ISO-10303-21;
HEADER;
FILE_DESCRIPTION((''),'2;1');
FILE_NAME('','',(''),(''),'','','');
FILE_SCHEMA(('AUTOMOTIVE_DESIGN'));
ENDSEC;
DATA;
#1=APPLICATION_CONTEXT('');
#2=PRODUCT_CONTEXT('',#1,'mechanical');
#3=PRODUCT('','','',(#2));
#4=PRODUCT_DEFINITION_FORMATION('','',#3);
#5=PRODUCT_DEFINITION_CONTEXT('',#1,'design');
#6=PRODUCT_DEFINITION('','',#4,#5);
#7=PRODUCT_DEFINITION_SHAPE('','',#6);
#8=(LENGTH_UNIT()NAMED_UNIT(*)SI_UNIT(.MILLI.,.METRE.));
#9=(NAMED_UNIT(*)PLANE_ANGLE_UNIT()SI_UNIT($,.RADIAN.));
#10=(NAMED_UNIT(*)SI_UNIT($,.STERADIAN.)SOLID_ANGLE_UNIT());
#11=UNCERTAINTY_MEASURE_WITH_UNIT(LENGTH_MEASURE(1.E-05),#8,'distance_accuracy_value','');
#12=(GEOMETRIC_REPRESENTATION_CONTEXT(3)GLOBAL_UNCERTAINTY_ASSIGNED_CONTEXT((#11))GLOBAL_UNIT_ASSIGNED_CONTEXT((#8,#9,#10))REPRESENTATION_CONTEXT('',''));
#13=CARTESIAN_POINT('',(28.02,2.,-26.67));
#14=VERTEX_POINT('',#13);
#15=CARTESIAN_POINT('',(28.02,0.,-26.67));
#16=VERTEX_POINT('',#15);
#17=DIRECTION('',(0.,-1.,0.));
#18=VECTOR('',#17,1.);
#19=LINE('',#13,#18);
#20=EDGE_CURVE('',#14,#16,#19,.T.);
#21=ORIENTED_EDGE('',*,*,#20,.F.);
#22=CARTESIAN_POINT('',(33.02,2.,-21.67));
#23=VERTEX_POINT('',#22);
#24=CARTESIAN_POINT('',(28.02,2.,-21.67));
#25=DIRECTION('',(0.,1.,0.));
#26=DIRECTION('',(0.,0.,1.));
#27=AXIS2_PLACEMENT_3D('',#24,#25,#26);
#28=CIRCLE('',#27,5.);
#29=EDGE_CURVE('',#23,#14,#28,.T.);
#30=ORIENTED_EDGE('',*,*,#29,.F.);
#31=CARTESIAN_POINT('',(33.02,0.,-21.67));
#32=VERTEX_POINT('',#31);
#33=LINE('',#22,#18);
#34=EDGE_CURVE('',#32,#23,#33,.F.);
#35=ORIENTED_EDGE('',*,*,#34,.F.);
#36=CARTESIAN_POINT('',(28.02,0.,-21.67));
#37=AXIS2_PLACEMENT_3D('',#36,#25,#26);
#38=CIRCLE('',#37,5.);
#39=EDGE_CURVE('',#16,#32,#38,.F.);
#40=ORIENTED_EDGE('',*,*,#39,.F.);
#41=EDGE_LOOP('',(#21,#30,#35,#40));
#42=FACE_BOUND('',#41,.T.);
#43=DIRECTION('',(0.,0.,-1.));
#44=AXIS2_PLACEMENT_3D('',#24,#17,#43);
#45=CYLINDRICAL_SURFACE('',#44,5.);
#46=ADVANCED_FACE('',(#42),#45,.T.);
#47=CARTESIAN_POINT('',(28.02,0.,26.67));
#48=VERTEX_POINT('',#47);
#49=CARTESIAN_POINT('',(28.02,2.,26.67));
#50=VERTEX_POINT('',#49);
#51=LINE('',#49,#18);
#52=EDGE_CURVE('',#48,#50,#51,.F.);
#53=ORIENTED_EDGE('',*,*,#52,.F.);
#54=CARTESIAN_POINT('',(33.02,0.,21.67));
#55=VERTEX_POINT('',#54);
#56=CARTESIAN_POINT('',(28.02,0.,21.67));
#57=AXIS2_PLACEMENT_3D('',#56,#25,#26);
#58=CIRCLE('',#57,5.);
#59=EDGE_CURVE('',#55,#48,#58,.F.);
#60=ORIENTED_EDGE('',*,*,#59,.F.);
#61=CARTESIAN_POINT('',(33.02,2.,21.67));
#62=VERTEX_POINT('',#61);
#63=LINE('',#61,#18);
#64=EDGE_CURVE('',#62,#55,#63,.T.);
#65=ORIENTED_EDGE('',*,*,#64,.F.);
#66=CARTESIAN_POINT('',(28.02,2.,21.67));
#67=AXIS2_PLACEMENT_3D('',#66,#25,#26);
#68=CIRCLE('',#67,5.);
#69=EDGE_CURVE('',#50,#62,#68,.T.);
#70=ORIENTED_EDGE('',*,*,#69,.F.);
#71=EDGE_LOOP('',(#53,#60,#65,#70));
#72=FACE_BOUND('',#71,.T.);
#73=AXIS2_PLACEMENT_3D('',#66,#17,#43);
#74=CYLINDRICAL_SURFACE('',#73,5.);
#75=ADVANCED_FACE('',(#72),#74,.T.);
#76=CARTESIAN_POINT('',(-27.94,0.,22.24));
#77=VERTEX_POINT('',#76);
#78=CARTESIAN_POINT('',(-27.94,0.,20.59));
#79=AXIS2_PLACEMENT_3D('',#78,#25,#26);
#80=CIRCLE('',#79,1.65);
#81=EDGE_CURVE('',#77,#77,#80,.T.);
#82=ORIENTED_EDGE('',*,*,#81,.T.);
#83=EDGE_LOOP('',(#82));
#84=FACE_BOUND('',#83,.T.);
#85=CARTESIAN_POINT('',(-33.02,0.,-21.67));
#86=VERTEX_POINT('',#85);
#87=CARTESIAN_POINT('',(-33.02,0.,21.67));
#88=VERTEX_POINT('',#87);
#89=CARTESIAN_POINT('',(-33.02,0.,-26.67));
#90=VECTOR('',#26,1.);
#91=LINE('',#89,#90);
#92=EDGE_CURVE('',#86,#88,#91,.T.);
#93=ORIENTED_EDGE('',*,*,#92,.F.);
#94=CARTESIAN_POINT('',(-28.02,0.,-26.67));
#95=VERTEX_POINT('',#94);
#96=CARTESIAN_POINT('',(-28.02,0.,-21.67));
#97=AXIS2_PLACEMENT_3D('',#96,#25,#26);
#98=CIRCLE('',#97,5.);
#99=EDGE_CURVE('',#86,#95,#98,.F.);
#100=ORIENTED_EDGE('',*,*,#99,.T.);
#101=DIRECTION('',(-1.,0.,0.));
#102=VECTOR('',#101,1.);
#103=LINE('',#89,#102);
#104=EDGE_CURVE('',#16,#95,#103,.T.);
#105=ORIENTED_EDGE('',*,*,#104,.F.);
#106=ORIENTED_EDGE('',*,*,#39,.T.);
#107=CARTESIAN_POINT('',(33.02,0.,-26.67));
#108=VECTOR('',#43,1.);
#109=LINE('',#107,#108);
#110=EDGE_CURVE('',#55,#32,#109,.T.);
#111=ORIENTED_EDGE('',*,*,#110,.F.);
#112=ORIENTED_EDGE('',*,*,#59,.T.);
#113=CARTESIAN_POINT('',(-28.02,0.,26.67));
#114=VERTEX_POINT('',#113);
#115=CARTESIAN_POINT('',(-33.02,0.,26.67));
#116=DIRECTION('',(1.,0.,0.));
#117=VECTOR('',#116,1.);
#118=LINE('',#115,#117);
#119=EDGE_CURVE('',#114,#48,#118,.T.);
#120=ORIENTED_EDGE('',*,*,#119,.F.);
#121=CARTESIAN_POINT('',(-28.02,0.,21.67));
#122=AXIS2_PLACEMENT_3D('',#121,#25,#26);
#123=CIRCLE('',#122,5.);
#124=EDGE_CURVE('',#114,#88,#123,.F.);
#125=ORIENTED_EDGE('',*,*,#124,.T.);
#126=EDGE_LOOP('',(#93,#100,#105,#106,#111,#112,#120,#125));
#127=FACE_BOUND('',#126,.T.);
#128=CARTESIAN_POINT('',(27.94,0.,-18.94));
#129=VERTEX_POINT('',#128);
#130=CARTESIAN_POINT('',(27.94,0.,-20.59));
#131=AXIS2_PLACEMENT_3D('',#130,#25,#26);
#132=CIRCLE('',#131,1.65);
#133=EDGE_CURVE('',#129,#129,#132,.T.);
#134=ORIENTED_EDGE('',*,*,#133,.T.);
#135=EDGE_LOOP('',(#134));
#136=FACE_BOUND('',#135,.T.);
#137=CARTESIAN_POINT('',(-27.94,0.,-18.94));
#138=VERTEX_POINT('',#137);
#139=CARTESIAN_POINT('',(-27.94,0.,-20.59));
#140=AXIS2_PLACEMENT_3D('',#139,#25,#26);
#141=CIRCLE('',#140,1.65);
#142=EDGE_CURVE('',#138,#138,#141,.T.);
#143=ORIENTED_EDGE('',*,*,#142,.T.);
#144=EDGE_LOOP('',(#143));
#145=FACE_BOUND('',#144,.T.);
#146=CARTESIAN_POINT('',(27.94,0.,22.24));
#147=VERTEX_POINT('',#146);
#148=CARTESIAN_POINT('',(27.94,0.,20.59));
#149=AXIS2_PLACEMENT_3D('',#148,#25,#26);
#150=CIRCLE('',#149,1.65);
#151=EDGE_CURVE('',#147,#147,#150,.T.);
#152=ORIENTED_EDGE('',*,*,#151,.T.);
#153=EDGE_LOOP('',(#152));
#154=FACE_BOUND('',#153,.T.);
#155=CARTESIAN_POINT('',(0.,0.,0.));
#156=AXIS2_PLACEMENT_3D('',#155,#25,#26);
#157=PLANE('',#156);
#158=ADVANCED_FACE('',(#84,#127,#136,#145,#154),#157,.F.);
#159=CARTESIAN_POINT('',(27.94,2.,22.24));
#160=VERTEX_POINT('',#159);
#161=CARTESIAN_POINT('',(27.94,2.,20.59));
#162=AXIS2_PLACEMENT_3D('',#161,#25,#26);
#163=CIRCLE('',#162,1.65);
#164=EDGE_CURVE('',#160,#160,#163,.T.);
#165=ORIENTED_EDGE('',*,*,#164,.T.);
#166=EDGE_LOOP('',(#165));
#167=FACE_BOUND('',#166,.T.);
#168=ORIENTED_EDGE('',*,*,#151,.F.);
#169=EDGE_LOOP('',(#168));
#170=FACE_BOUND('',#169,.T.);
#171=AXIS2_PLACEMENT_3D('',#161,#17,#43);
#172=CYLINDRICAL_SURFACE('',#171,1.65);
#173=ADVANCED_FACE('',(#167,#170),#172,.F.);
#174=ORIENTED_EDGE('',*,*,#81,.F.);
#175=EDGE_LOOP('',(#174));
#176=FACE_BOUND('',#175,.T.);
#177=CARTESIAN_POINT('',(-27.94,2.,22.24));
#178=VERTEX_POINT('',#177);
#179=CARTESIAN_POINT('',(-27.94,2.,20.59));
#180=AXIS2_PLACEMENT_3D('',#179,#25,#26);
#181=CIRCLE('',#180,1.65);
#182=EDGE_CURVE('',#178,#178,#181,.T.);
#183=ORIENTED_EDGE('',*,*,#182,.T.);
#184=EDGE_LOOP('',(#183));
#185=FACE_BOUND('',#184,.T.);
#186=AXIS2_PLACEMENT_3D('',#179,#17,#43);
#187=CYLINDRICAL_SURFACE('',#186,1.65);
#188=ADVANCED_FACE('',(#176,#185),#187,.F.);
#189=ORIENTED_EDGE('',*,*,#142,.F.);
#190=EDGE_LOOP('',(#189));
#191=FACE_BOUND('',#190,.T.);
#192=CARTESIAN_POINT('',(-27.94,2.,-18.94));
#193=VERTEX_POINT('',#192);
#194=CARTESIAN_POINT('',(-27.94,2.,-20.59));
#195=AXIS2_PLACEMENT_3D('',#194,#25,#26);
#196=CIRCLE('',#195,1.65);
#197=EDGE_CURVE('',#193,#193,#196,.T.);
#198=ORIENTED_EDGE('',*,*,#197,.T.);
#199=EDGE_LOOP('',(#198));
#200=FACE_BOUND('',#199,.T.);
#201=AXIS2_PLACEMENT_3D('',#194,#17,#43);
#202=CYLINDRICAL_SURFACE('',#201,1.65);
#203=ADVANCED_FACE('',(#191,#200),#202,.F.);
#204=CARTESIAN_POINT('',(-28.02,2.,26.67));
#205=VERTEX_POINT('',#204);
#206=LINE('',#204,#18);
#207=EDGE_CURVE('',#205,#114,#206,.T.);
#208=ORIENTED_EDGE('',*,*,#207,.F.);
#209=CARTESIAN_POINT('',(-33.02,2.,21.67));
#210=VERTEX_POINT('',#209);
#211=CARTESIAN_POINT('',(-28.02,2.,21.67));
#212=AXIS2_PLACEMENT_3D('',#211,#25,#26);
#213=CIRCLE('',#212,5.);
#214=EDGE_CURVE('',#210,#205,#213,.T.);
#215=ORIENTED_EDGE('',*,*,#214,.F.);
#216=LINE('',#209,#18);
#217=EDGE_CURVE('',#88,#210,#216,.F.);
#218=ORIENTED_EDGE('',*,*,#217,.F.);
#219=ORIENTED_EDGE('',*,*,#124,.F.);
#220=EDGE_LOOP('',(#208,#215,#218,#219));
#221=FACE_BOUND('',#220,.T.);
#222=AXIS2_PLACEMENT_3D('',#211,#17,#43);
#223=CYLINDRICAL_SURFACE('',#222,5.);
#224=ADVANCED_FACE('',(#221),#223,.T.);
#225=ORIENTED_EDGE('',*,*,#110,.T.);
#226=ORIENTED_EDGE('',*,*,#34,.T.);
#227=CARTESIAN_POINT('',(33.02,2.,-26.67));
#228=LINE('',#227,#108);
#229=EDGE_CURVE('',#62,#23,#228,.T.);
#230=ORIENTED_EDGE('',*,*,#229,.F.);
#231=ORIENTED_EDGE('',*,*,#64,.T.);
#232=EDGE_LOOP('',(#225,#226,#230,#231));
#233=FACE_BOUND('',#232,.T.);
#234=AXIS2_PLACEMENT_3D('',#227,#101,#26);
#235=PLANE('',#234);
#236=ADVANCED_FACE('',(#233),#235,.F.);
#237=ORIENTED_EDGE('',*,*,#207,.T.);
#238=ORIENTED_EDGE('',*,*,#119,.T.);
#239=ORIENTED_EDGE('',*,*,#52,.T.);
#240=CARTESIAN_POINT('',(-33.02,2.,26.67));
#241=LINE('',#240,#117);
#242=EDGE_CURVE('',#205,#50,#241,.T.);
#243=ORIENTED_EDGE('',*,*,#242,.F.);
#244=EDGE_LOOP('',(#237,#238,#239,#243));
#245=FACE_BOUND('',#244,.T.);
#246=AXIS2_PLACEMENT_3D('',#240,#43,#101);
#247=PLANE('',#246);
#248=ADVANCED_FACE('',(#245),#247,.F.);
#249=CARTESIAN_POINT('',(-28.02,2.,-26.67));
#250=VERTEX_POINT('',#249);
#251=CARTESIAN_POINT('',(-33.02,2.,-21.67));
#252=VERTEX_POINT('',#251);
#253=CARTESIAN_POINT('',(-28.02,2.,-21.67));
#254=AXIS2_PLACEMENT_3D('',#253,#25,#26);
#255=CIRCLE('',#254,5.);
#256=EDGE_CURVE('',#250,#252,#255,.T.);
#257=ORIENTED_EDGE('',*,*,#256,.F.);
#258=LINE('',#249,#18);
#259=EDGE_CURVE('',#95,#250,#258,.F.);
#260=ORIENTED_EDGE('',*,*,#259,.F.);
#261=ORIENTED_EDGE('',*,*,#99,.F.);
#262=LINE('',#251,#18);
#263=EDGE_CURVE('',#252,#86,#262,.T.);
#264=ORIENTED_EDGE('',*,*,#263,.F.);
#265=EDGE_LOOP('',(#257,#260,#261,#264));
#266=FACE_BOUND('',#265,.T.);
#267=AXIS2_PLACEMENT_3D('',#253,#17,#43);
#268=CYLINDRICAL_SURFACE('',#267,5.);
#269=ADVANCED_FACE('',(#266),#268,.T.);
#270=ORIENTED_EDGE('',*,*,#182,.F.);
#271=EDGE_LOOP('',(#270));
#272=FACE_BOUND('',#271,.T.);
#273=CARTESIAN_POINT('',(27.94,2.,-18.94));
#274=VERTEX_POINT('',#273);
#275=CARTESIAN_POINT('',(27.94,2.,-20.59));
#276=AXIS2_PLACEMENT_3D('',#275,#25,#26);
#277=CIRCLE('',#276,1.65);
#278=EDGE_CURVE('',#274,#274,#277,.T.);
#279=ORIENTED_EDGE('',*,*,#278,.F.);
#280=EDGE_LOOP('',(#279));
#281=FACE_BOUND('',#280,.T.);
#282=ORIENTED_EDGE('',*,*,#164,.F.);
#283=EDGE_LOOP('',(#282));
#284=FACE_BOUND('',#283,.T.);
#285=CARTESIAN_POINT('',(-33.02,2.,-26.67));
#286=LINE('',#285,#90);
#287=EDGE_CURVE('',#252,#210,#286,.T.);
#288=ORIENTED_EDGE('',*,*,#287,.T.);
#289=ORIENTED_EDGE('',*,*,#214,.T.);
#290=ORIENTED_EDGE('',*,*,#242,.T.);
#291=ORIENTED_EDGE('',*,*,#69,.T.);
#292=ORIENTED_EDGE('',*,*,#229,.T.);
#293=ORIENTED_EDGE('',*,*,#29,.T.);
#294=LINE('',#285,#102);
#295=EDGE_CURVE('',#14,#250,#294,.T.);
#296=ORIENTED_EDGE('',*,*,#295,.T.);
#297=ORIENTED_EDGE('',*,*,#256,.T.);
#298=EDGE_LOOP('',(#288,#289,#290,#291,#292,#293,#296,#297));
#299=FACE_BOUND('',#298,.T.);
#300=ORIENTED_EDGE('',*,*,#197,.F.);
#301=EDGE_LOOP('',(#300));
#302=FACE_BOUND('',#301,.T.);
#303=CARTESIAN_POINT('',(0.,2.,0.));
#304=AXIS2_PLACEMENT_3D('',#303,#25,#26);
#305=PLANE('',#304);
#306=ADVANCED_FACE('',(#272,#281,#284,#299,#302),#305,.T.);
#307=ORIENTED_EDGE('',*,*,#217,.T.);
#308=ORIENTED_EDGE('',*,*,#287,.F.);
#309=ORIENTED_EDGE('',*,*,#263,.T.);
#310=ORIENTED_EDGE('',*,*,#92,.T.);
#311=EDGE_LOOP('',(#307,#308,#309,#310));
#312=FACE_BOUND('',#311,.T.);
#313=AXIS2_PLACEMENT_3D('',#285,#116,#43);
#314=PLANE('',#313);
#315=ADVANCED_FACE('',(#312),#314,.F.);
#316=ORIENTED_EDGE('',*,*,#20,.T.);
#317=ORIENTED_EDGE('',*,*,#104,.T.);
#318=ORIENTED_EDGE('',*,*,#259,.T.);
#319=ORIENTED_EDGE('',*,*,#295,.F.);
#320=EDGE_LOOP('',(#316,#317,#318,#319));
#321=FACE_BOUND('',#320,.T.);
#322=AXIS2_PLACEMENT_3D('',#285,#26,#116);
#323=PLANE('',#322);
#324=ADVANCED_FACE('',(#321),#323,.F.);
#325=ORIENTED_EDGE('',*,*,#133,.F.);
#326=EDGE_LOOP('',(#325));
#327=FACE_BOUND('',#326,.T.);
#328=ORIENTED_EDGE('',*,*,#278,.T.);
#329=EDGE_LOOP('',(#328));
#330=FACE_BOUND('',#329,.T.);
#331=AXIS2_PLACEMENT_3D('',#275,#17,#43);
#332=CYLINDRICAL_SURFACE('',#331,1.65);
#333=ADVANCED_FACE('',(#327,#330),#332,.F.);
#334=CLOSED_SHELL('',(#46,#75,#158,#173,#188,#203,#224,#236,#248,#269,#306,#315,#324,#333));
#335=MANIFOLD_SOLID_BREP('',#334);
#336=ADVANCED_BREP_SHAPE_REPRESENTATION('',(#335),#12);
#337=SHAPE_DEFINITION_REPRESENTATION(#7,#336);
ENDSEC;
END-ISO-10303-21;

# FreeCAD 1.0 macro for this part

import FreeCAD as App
import Part
import Sketcher
from FreeCAD import Vector


def edges_at(feature, points):
    """Names of the edges that pass closest to the given points."""
    edges = feature.Shape.Edges
    near = lambda p: min(range(len(edges)), key=lambda i: edges[i].distToShape(Part.Vertex(*p))[0])
    return sorted({f"Edge{near(p) + 1}" for p in points})


def add_polygon(sketch, points):
    """Adds a closed chain of lines whose ends are joined by coincident constraints."""
    first, n = sketch.GeometryCount, len(points)
    for a, b in zip(points, points[1:] + points[:1]):
        sketch.addGeometry(Part.LineSegment(App.Vector(*a, 0), App.Vector(*b, 0)), False)
    for i in range(n):
        sketch.addConstraint(Sketcher.Constraint("Coincident", first + i, 2, first + (i + 1) % n, 1))

doc = App.newDocument("Part")
body = doc.addObject("PartDesign::Body", "Body")

sketch1 = body.newObject("Sketcher::SketchObject", "Sketch")
sketch1.AttachmentSupport = (doc.getObject("XZ_Plane"), [""])
sketch1.MapMode = "FlatFace"
add_polygon(sketch1, [(-33.02, -26.67), (-33.02, 26.67), (33.02, 26.67), (33.02, -26.67)])
sketch1.addGeometry(Part.Circle(Vector(-27.94, 20.59, 0), Vector(0, 0, 1), 1.65), False)
sketch1.addGeometry(Part.Circle(Vector(27.94, 20.59, 0), Vector(0, 0, 1), 1.65), False)
sketch1.addGeometry(Part.Circle(Vector(-27.94, -20.59, 0), Vector(0, 0, 1), 1.65), False)
sketch1.addGeometry(Part.Circle(Vector(27.94, -20.59, 0), Vector(0, 0, 1), 1.65), False)
sketch1.addConstraint([
    Sketcher.Constraint("Vertical", 0),
    Sketcher.Constraint("Horizontal", 1),
    Sketcher.Constraint("Vertical", 2),
    Sketcher.Constraint("Horizontal", 3),
    Sketcher.Constraint("Equal", 4, 5),
    Sketcher.Constraint("Equal", 5, 6),
    Sketcher.Constraint("Equal", 6, 7),
    Sketcher.Constraint("Symmetric", 5, 3, 6, 3, -1, 1),
    Sketcher.Constraint("Symmetric", 4, 3, 7, 3, -1, 1),
    Sketcher.Constraint("Symmetric", 0, 2, 2, 2, -1, 1),
    Sketcher.Constraint("Symmetric", 4, 3, 5, 3, -2),
    Sketcher.Constraint("Diameter", 4, 3.3),
    Sketcher.Constraint("DistanceX", 1, 1, 1, 2, 66.04),
    Sketcher.Constraint("DistanceY", 0, 1, 0, 2, 53.34),
    Sketcher.Constraint("DistanceX", 4, 3, -1, 1, 27.94),
    Sketcher.Constraint("DistanceY", -1, 1, 4, 3, 20.59),
])
pad1 = body.newObject("PartDesign::Pad", "Pad")
pad1.Profile = sketch1
pad1.Length = 2
pad1.Reversed = True
doc.recompute()

fillet = body.newObject("PartDesign::Fillet", "Fillet")
fillet.Base = (pad1, edges_at(pad1, [
    (33.02, 1, 26.67),
    (-33.02, 1, 26.67),
    (-33.02, 1, -26.67),
    (33.02, 1, -26.67),
]))
fillet.Radius = 5

doc.recompute()
